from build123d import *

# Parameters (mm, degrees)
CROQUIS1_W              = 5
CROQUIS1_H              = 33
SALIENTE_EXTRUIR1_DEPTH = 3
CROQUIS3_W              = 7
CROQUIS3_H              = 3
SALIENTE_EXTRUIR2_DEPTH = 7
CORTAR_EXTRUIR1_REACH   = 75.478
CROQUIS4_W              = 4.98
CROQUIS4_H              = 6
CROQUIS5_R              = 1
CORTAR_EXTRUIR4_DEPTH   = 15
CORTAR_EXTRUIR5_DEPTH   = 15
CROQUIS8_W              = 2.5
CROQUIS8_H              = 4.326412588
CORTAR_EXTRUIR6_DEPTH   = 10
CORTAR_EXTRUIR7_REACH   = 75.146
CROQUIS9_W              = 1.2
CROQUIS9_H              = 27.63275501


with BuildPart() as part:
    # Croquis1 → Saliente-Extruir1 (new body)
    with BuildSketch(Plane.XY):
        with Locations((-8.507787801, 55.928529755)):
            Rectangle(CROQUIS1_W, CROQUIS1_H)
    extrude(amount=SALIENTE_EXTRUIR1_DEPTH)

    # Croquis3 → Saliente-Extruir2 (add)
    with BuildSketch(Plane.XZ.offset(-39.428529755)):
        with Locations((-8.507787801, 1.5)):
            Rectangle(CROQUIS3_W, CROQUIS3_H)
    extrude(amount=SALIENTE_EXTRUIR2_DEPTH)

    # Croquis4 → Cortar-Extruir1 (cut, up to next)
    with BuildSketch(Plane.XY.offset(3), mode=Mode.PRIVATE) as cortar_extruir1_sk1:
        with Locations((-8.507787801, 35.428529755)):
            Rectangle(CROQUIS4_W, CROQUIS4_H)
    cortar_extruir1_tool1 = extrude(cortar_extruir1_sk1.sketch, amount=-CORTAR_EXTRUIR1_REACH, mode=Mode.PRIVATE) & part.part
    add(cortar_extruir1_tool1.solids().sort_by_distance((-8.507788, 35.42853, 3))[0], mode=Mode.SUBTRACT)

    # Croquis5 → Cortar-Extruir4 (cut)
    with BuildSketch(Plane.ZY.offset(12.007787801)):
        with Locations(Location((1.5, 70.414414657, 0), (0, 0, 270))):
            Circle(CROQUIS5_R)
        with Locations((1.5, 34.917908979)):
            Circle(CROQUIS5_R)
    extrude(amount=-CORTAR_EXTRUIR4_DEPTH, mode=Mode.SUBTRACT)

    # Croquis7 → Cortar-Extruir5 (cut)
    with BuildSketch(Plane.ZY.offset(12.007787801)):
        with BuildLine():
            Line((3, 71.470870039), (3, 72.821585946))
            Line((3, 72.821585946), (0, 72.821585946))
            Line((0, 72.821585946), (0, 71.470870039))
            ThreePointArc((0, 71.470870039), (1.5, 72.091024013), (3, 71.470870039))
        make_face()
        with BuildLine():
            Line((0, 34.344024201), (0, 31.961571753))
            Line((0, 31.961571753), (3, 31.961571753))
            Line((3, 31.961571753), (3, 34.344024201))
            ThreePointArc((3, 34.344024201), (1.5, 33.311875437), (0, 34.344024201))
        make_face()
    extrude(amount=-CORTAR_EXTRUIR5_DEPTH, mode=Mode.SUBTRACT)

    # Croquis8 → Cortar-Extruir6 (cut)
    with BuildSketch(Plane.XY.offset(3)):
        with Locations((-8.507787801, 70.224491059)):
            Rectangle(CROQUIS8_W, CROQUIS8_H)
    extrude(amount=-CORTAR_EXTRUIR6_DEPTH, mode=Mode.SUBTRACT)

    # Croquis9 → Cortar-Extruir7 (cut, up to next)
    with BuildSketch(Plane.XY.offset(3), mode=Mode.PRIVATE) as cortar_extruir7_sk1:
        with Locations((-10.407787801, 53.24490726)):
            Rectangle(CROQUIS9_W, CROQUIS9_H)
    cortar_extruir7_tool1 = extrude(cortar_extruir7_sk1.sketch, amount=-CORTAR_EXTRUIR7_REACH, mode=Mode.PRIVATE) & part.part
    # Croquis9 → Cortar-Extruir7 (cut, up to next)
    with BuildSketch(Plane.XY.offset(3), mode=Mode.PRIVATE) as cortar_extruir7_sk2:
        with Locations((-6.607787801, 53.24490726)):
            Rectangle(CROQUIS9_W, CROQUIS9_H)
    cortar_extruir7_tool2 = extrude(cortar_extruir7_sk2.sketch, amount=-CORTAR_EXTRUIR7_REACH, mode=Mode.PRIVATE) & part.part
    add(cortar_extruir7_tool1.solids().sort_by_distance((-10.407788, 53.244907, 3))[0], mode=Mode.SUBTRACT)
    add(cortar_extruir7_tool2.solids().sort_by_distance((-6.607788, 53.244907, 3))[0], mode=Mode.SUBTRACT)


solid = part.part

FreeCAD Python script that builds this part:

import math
import FreeCAD as App
import Part
import Sketcher
from FreeCAD import Vector
Q = App.Units.Quantity


def add_polygon(sketch, points):
    """Adds a closed chain of lines whose ends are joined by coincident constraints."""
    first, n = sketch.GeometryCount, len(points)
    for a, b in zip(points, points[1:] + points[:1]):
        sketch.addGeometry(Part.LineSegment(App.Vector(*a, 0), App.Vector(*b, 0)), False)
    for i in range(n):
        sketch.addConstraint(Sketcher.Constraint("Coincident", first + i, 2, first + (i + 1) % n, 1))

doc = App.newDocument("Part")
body = doc.addObject("PartDesign::Body", "Body")

sketch1 = body.newObject("Sketcher::SketchObject", "Sketch")
sketch1.AttachmentSupport = (doc.getObject("XY_Plane"), [""])
sketch1.MapMode = "FlatFace"
add_polygon(sketch1, [(-11.007788, 72.42853), (-11.007788, 39.42853), (-6.007788, 39.42853), (-6.007788, 72.42853)])
sketch1.addConstraint([
    Sketcher.Constraint("Vertical", 0),
    Sketcher.Constraint("Horizontal", 1),
    Sketcher.Constraint("Vertical", 2),
    Sketcher.Constraint("Horizontal", 3),
    Sketcher.Constraint("DistanceX", 1, 1, 1, 2, Q("5 mm")),
    Sketcher.Constraint("DistanceY", 0, 2, 0, 1, Q("33 mm")),
    Sketcher.Constraint("DistanceY", -1, 1, 0, 2, Q("39.42853 mm")),
    Sketcher.Constraint("DistanceX", 0, 2, -1, 1, Q("11.007788 mm")),
])
pad1 = body.newObject("PartDesign::Pad", "Pad")
pad1.Profile = sketch1
pad1.Length = 3

sketch2 = body.newObject("Sketcher::SketchObject", "Sketch001")
sketch2.AttachmentSupport = (doc.getObject("XZ_Plane"), [""])
sketch2.MapMode = "FlatFace"
sketch2.AttachmentOffset = App.Placement(Vector(0, 0, -39.42853), App.Rotation())
add_polygon(sketch2, [(-12.007788, 3), (-12.007788, 0), (-5.007788, 0), (-5.007788, 3)])
sketch2.addConstraint([
    Sketcher.Constraint("Vertical", 0),
    Sketcher.Constraint("Horizontal", 1),
    Sketcher.Constraint("Vertical", 2),
    Sketcher.Constraint("Horizontal", 3),
    Sketcher.Constraint("PointOnObject", 0, 2, -1),
    Sketcher.Constraint("DistanceX", 1, 1, 1, 2, Q("7 mm")),
    Sketcher.Constraint("DistanceY", 0, 2, 0, 1, Q("3 mm")),
    Sketcher.Constraint("DistanceX", 0, 2, -1, 1, Q("12.007788 mm")),
])
pad2 = body.newObject("PartDesign::Pad", "Pad001")
pad2.Profile = sketch2
pad2.Length = 7

sketch3 = body.newObject("Sketcher::SketchObject", "Sketch002")
sketch3.AttachmentSupport = (doc.getObject("XY_Plane"), [""])
sketch3.MapMode = "FlatFace"
sketch3.AttachmentOffset = App.Placement(Vector(0, 0, 3), App.Rotation())
add_polygon(sketch3, [(-10.997788, 38.42853), (-10.997788, 32.42853), (-6.017788, 32.42853), (-6.017788, 38.42853)])
sketch3.addConstraint([
    Sketcher.Constraint("Vertical", 0),
    Sketcher.Constraint("Horizontal", 1),
    Sketcher.Constraint("Vertical", 2),
    Sketcher.Constraint("Horizontal", 3),
    Sketcher.Constraint("DistanceY", 0, 2, 0, 1, Q("6 mm")),
    Sketcher.Constraint("DistanceX", 1, 1, 1, 2, Q("4.98 mm")),
    Sketcher.Constraint("DistanceY", -1, 1, 0, 2, Q("32.42853 mm")),
    Sketcher.Constraint("DistanceX", 0, 2, -1, 1, Q("10.997788 mm")),
])
pocket1 = body.newObject("PartDesign::Pocket", "Pocket")
pocket1.Profile = sketch3
pocket1.Type = "UpToFirst"

sketch4 = body.newObject("Sketcher::SketchObject", "Sketch003")
sketch4.AttachmentSupport = (doc.getObject("YZ_Plane"), [""])
sketch4.MapMode = "FlatFace"
sketch4.AttachmentOffset = App.Placement(Vector(0, 0, -12.007788), App.Rotation())
sketch4.addGeometry([
    Part.Circle(Vector(70.414415, 1.5, 0), Vector(0, 0, 1), 1),
    Part.Circle(Vector(34.917909, 1.5, 0), Vector(0, 0, 1), 1),
], False)
sketch4.addConstraint([
    Sketcher.Constraint("Equal", 0, 1),
    Sketcher.Constraint("Horizontal", 0, 3, 1, 3),
    Sketcher.Constraint("Diameter", 0, Q("2 mm")),
    Sketcher.Constraint("DistanceY", -1, 1, 0, 3, Q("1.5 mm")),
    Sketcher.Constraint("DistanceX", -1, 1, 1, 3, Q("34.917909 mm")),
    Sketcher.Constraint("DistanceX", -1, 1, 0, 3, Q("70.414415 mm")),
])
pocket2 = body.newObject("PartDesign::Pocket", "Pocket001")
pocket2.Profile = sketch4
pocket2.Length = 15
pocket2.Reversed = True

sketch5 = body.newObject("Sketcher::SketchObject", "Sketch004")
sketch5.AttachmentSupport = (doc.getObject("YZ_Plane"), [""])
sketch5.MapMode = "FlatFace"
sketch5.AttachmentOffset = App.Placement(Vector(0, 0, -12.007788), App.Rotation())
sketch5.addGeometry([
    Part.LineSegment(Vector(71.47087, 3, 0), Vector(72.821586, 3, 0)),
    Part.LineSegment(Vector(72.821586, 3, 0), Vector(72.821586, 0, 0)),
    Part.LineSegment(Vector(72.821586, 0, 0), Vector(71.47087, 0, 0)),
    Part.ArcOfCircle(Part.Circle(Vector(69.966881, 1.5, 0), Vector(0, 0, 1), 2.124143), math.radians(-44.923924), math.radians(44.923924)),
    Part.LineSegment(Vector(34.344024, 0, 0), Vector(31.961572, 0, 0)),
    Part.LineSegment(Vector(31.961572, 0, 0), Vector(31.961572, 3, 0)),
    Part.LineSegment(Vector(31.961572, 3, 0), Vector(34.344024, 3, 0)),
    Part.ArcOfCircle(Part.Circle(Vector(34.917909, 1.5, 0), Vector(0, 0, 1), 1.606034), math.radians(110.936343), math.radians(249.063657)),
], False)
sketch5.addConstraint([
    Sketcher.Constraint("Coincident", 0, 2, 1, 1),
    Sketcher.Constraint("Coincident", 1, 2, 2, 1),
    Sketcher.Constraint("Coincident", 2, 2, 3, 1),
    Sketcher.Constraint("Coincident", 3, 2, 0, 1),
    Sketcher.Constraint("Coincident", 4, 2, 5, 1),
    Sketcher.Constraint("Coincident", 5, 2, 6, 1),
    Sketcher.Constraint("Coincident", 6, 2, 7, 1),
    Sketcher.Constraint("Coincident", 7, 2, 4, 1),
    Sketcher.Constraint("Horizontal", 0),
    Sketcher.Constraint("Vertical", 1),
    Sketcher.Constraint("Horizontal", 2),
    Sketcher.Constraint("Horizontal", 4),
    Sketcher.Constraint("Vertical", 5),
    Sketcher.Constraint("Horizontal", 6),
    Sketcher.Constraint("PointOnObject", 1, 2, -1),
    Sketcher.Constraint("PointOnObject", 4, 2, -1),
    Sketcher.Constraint("Horizontal", 3, 3, 7, 3),
    Sketcher.Constraint("Horizontal", 3, 2, 5, 2),
    Sketcher.Constraint("Vertical", 2, 2, 3, 2),
    Sketcher.Constraint("DistanceY", 1, 2, 1, 1, Q("3 mm")),
    Sketcher.Constraint("Radius", 3, Q("2.124143 mm")),
    Sketcher.Constraint("Radius", 7, Q("1.606034 mm")),
    Sketcher.Constraint("DistanceX", 4, 2, 2, 2, Q("39.509298 mm")),
    Sketcher.Constraint("DistanceX", 0, 1, 0, 2, Q("1.350716 mm")),
    Sketcher.Constraint("DistanceX", 4, 2, 4, 1, Q("2.382452 mm")),
    Sketcher.Constraint("DistanceX", -1, 1, 3, 3, Q("69.966881 mm")),
])
pocket3 = body.newObject("PartDesign::Pocket", "Pocket002")
pocket3.Profile = sketch5
pocket3.Length = 15
pocket3.Reversed = True

sketch6 = body.newObject("Sketcher::SketchObject", "Sketch005")
sketch6.AttachmentSupport = (doc.getObject("XY_Plane"), [""])
sketch6.MapMode = "FlatFace"
sketch6.AttachmentOffset = App.Placement(Vector(0, 0, 3), App.Rotation())
add_polygon(sketch6, [(-9.757788, 72.387697), (-9.757788, 68.061285), (-7.257788, 68.061285), (-7.257788, 72.387697)])
sketch6.addConstraint([
    Sketcher.Constraint("Vertical", 0),
    Sketcher.Constraint("Horizontal", 1),
    Sketcher.Constraint("Vertical", 2),
    Sketcher.Constraint("Horizontal", 3),
    Sketcher.Constraint("DistanceX", 1, 1, 1, 2, Q("2.5 mm")),
    Sketcher.Constraint("DistanceY", 0, 2, 0, 1, Q("4.326413 mm")),
    Sketcher.Constraint("DistanceX", 0, 2, -1, 1, Q("9.757788 mm")),
    Sketcher.Constraint("DistanceY", -1, 1, 0, 2, Q("68.061285 mm")),
])
pocket4 = body.newObject("PartDesign::Pocket", "Pocket003")
pocket4.Profile = sketch6
pocket4.Length = 10

sketch7 = body.newObject("Sketcher::SketchObject", "Sketch006")
sketch7.AttachmentSupport = (doc.getObject("XY_Plane"), [""])
sketch7.MapMode = "FlatFace"
sketch7.AttachmentOffset = App.Placement(Vector(0, 0, 3), App.Rotation())
add_polygon(sketch7, [(-11.007788, 67.061285), (-11.007788, 39.42853), (-9.807788, 39.42853), (-9.807788, 67.061285)])
sketch7.addConstraint([
    Sketcher.Constraint("Vertical", 0),
    Sketcher.Constraint("Horizontal", 1),
    Sketcher.Constraint("Vertical", 2),
    Sketcher.Constraint("Horizontal", 3),
    Sketcher.Constraint("DistanceX", 1, 1, 1, 2, Q("1.2 mm")),
    Sketcher.Constraint("DistanceY", 0, 2, 0, 1, Q("27.632755 mm")),
    Sketcher.Constraint("DistanceY", -1, 1, 0, 2, Q("39.42853 mm")),
    Sketcher.Constraint("DistanceX", 0, 2, -1, 1, Q("11.007788 mm")),
])
pocket5 = body.newObject("PartDesign::Pocket", "Pocket004")
pocket5.Profile = sketch7
pocket5.Type = "UpToFirst"

sketch8 = body.newObject("Sketcher::SketchObject", "Sketch007")
sketch8.AttachmentSupport = (doc.getObject("XY_Plane"), [""])
sketch8.MapMode = "FlatFace"
sketch8.AttachmentOffset = App.Placement(Vector(0, 0, 3), App.Rotation())
add_polygon(sketch8, [(-7.207788, 67.061285), (-7.207788, 39.42853), (-6.007788, 39.42853), (-6.007788, 67.061285)])
sketch8.addConstraint([
    Sketcher.Constraint("Vertical", 0),
    Sketcher.Constraint("Horizontal", 1),
    Sketcher.Constraint("Vertical", 2),
    Sketcher.Constraint("Horizontal", 3),
    Sketcher.Constraint("DistanceX", 1, 1, 1, 2, Q("1.2 mm")),
    Sketcher.Constraint("DistanceY", 0, 2, 0, 1, Q("27.632755 mm")),
    Sketcher.Constraint("DistanceY", -1, 1, 0, 2, Q("39.42853 mm")),
    Sketcher.Constraint("DistanceX", 0, 2, -1, 1, Q("7.207788 mm")),
])
pocket6 = body.newObject("PartDesign::Pocket", "Pocket005")
pocket6.Profile = sketch8
pocket6.Type = "UpToFirst"

doc.recompute()
